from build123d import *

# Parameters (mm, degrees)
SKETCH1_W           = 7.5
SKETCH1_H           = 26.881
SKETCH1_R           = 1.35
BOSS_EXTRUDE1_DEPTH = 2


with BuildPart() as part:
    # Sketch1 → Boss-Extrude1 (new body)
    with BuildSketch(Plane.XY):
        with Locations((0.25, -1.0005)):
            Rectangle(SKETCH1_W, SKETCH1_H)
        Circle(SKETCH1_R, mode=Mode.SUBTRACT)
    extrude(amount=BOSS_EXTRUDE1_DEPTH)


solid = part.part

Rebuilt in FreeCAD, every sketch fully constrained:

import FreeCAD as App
import Part
import Sketcher
from FreeCAD import Vector


def add_polygon(sketch, points):
    """Adds a closed chain of lines whose ends are joined by coincident constraints."""
    first, n = sketch.GeometryCount, len(points)
    for a, b in zip(points, points[1:] + points[:1]):
        sketch.addGeometry(Part.LineSegment(App.Vector(*a, 0), App.Vector(*b, 0)), False)
    for i in range(n):
        sketch.addConstraint(Sketcher.Constraint("Coincident", first + i, 2, first + (i + 1) % n, 1))

doc = App.newDocument("Part")
body = doc.addObject("PartDesign::Body", "Body")

# Sketch on XY plane
sketch1 = body.newObject("Sketcher::SketchObject", "Sketch")
sketch1.AttachmentSupport = (doc.getObject("XY_Plane"), [""])
sketch1.MapMode = "FlatFace"
add_polygon(sketch1, [(-3.5, 12.4), (-3.5, -14.4), (4, -14.4), (4, 12.4)])  # lines 0-3
sketch1.addGeometry(Part.Circle(Vector(0, 0, 0), Vector(0, 0, 1), 1.4), False)  # 4
sketch1.addConstraint([
    Sketcher.Constraint("Vertical", 0),
    Sketcher.Constraint("Horizontal", 1),
    Sketcher.Constraint("Vertical", 2),
    Sketcher.Constraint("Horizontal", 3),
    Sketcher.Constraint("Coincident", 4, 3, -1, 1),
    Sketcher.Constraint("Diameter", 4, 2.7),
    Sketcher.Constraint("DistanceX", 1, 1, 1, 2, 7.5),
    Sketcher.Constraint("DistanceX", -1, 1, 1, 2, 4.0),
    Sketcher.Constraint("DistanceY", 0, 2, 0, 1, 26.881),
    Sketcher.Constraint("DistanceY", -1, 1, 2, 2, 12.44),
])
pad1 = body.newObject("PartDesign::Pad", "Pad")
pad1.Profile = sketch1
pad1.Length = 2

doc.recompute()
